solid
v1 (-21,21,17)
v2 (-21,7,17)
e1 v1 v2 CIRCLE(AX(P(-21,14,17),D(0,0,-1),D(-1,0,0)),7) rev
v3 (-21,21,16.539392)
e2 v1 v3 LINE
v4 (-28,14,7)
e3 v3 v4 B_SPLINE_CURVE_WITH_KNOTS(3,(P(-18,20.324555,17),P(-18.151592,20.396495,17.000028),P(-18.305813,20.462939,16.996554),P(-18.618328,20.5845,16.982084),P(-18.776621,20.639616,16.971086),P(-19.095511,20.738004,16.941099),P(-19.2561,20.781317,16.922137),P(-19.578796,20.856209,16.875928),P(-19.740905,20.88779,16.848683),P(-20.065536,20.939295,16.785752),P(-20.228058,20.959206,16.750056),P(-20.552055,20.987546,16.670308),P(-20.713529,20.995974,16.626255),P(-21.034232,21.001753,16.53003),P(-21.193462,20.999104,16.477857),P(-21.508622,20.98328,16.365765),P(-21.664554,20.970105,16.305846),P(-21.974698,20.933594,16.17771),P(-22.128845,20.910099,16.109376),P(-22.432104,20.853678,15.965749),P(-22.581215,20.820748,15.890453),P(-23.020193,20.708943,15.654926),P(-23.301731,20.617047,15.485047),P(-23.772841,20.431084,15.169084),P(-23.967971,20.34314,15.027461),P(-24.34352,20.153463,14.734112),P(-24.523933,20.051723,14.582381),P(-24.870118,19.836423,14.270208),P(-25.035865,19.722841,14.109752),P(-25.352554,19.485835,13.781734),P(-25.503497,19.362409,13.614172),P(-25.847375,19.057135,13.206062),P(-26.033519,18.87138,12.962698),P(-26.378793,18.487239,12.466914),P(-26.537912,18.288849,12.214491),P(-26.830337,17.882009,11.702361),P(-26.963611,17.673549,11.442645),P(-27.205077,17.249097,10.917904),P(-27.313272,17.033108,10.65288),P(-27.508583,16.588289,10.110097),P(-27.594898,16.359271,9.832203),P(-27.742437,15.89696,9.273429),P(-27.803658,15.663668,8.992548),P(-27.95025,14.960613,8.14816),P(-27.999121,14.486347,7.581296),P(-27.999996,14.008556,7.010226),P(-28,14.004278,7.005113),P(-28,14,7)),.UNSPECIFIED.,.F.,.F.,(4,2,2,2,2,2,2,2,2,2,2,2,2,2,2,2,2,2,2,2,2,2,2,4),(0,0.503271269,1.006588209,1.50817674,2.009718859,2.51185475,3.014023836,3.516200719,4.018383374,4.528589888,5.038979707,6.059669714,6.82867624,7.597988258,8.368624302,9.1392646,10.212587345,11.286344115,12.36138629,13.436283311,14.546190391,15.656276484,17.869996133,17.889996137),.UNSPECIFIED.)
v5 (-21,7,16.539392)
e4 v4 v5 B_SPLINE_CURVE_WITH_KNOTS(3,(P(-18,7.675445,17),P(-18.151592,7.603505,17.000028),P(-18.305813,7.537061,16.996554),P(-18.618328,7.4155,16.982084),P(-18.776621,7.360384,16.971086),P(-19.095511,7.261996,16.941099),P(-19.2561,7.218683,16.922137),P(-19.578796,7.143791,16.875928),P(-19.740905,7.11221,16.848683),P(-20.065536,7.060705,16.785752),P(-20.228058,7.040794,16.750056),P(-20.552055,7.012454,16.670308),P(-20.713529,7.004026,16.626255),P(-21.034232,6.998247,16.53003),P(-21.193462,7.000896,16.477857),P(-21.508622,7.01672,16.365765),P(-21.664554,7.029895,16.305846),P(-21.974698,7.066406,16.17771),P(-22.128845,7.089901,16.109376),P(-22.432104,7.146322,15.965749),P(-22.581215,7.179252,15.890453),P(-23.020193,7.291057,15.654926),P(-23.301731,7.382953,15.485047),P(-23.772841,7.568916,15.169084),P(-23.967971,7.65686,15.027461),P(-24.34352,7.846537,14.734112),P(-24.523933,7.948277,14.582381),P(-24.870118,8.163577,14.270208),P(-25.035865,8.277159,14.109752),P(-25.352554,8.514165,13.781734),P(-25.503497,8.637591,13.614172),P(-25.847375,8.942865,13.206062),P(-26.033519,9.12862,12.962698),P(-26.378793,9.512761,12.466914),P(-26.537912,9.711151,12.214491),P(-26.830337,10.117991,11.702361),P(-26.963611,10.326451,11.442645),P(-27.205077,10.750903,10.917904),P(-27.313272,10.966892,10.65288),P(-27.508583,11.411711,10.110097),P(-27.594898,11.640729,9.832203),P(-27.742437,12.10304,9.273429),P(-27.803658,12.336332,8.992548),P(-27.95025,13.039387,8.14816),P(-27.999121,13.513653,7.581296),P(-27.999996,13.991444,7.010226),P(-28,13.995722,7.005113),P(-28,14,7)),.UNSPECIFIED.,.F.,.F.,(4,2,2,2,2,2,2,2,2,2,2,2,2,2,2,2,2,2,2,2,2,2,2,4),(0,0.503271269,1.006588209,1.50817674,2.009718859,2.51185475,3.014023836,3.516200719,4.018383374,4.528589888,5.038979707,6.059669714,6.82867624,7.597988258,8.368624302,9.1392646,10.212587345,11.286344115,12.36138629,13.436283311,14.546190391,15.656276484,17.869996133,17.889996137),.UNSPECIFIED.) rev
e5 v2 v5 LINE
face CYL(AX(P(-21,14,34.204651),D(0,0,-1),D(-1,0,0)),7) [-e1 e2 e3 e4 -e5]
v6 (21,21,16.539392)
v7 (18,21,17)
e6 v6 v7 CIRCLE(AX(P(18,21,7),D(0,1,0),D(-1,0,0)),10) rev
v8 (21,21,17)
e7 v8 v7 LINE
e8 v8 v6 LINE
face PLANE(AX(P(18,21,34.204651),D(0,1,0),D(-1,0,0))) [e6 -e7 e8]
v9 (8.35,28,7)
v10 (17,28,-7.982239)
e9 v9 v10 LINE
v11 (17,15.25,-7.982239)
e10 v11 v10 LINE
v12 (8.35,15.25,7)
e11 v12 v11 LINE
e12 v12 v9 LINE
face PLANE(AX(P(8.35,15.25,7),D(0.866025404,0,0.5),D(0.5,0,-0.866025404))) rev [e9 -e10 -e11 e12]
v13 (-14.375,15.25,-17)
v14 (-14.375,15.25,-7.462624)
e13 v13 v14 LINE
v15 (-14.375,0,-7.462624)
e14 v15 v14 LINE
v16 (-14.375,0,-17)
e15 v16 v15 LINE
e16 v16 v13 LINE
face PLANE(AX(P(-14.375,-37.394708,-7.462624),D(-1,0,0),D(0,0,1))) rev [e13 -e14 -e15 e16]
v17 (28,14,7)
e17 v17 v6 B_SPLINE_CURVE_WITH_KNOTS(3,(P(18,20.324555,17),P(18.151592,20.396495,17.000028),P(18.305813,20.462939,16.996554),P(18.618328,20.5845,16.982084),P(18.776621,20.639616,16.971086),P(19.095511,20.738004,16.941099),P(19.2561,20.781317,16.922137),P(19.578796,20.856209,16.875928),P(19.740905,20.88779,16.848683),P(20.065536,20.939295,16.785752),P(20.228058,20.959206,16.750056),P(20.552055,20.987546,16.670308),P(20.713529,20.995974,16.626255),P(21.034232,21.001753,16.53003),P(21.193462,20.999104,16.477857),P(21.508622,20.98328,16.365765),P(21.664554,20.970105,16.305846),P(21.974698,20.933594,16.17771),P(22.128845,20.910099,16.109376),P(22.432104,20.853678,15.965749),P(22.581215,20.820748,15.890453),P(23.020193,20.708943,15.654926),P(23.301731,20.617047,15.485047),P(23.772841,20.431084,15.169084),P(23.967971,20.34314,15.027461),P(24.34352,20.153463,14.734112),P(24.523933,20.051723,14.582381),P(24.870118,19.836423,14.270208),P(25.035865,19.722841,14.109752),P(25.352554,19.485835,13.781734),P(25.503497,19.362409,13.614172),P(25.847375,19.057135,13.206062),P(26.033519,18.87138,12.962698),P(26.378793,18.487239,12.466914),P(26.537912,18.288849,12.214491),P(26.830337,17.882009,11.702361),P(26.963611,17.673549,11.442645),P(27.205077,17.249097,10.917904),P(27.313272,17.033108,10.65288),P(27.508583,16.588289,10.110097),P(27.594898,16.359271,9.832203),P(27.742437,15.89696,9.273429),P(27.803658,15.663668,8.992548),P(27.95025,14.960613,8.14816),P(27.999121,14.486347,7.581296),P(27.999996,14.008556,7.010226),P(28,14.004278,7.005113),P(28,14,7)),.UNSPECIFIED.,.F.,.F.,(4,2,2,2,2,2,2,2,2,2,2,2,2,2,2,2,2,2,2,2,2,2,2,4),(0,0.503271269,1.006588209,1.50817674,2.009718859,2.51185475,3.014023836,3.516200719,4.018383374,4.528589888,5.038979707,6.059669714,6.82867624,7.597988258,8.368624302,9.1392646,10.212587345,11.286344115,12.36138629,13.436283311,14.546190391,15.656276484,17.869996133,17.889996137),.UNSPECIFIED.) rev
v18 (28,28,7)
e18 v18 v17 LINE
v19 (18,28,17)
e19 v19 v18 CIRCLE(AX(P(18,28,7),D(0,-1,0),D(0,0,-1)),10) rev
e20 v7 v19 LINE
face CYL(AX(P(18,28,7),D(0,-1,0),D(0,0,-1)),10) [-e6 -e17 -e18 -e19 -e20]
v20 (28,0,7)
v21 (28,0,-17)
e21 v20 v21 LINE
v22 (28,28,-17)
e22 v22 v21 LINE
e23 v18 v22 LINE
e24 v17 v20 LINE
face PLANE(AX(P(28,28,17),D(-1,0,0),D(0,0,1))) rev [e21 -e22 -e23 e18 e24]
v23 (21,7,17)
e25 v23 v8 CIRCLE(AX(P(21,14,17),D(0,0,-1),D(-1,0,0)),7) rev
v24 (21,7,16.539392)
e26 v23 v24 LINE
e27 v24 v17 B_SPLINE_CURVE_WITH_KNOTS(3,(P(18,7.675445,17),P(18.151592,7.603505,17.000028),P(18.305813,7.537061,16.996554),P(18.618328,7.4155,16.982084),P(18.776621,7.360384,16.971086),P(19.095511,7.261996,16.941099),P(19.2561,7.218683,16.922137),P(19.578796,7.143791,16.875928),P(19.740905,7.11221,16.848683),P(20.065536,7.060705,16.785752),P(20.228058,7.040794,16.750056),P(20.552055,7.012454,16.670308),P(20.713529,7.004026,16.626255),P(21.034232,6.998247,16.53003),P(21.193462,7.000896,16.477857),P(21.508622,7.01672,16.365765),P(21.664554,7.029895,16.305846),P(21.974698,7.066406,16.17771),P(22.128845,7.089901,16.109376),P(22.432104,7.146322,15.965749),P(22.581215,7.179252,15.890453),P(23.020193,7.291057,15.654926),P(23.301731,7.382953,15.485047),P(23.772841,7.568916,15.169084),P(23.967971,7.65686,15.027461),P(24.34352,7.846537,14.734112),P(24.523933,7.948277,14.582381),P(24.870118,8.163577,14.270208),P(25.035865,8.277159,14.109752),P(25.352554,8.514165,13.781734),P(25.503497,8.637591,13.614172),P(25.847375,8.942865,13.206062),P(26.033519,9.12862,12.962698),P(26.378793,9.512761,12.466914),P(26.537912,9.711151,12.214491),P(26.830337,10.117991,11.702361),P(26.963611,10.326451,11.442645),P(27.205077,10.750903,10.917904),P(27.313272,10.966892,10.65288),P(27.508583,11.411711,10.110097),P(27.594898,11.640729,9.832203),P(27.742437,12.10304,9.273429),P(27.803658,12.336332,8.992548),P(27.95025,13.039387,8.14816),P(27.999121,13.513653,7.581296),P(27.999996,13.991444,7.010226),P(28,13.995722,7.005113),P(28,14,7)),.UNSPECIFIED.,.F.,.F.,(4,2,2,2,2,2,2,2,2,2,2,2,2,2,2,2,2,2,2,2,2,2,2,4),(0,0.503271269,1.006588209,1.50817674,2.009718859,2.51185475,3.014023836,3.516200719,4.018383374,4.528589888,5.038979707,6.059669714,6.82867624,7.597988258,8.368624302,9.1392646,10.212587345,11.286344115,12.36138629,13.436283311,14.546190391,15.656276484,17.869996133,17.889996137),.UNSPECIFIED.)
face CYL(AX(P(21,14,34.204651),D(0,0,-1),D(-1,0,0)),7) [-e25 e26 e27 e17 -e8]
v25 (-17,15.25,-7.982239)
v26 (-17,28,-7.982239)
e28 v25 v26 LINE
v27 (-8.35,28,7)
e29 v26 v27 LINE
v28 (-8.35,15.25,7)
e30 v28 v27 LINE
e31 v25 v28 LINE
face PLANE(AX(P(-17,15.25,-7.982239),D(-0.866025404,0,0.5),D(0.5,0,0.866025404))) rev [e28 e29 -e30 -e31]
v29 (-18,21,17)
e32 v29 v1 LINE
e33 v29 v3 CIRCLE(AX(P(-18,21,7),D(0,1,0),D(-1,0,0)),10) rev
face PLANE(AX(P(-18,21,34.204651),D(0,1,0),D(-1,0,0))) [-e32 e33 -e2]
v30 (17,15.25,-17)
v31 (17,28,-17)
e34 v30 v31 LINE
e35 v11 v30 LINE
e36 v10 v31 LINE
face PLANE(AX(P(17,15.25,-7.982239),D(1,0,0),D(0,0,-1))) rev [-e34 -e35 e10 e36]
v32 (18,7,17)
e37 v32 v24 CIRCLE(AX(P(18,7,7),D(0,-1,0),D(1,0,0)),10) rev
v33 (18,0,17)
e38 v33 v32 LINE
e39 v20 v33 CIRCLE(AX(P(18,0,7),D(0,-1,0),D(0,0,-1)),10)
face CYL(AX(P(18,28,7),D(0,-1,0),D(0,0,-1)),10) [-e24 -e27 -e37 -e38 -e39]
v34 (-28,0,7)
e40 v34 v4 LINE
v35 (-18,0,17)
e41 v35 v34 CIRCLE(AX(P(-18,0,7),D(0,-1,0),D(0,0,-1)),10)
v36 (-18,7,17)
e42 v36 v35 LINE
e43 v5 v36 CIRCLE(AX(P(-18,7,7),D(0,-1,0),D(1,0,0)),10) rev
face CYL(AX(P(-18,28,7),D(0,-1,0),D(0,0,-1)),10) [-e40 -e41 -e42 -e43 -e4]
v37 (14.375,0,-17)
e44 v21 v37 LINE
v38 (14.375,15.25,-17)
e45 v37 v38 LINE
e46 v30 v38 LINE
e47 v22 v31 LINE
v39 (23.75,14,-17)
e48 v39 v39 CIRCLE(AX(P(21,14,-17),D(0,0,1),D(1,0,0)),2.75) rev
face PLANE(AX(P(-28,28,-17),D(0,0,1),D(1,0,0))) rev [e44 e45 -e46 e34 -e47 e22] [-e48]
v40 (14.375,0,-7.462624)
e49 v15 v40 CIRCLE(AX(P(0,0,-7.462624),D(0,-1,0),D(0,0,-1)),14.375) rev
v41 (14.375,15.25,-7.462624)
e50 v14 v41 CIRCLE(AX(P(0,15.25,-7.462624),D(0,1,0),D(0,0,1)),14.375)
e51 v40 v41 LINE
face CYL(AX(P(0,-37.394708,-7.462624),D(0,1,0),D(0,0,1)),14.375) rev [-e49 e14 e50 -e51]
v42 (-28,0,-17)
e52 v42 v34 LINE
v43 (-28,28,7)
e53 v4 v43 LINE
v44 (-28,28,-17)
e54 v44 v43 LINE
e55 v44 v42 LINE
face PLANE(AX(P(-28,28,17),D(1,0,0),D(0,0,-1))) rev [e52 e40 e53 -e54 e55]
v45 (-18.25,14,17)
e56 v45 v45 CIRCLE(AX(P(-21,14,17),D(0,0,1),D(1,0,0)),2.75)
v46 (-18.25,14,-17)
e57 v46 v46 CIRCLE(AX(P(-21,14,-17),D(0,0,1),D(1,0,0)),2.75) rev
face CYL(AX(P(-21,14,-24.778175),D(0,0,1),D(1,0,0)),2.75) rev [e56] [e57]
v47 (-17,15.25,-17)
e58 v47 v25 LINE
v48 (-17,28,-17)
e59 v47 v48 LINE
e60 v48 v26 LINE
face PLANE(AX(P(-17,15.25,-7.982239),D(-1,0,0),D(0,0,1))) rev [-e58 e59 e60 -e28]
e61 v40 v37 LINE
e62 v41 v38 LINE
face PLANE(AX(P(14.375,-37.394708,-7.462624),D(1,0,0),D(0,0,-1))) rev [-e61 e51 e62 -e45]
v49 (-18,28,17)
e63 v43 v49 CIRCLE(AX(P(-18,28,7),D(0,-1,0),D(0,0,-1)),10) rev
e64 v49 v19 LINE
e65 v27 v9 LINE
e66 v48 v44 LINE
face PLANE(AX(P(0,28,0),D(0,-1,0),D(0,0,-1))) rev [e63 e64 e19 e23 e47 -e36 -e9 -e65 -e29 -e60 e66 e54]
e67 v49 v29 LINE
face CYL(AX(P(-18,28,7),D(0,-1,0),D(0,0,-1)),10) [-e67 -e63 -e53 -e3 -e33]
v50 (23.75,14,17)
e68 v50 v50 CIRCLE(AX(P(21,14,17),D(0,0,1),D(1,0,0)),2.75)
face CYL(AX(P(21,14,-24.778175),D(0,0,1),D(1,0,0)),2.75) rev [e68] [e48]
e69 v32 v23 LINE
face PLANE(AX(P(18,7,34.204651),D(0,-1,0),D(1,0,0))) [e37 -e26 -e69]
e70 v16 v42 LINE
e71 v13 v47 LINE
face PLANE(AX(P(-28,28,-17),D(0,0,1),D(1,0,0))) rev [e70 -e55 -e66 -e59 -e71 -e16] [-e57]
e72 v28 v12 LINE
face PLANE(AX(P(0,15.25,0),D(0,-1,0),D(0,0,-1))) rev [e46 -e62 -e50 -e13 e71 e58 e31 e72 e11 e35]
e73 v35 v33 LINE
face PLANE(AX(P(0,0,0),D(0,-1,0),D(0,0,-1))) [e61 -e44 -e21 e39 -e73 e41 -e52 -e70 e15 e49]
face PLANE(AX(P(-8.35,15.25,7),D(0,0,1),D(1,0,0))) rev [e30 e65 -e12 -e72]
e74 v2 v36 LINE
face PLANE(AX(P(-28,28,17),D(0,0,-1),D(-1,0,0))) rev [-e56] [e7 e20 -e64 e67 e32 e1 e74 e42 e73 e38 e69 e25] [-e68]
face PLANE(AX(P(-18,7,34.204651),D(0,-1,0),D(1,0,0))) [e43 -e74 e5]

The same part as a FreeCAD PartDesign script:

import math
import FreeCAD as App
import Part
import Sketcher
from FreeCAD import Vector
Q = App.Units.Quantity


def edges_at(feature, points):
    """Names of the edges that pass closest to the given points."""
    edges = feature.Shape.Edges
    near = lambda p: min(range(len(edges)), key=lambda i: edges[i].distToShape(Part.Vertex(*p))[0])
    return sorted({f"Edge{near(p) + 1}" for p in points})

doc = App.newDocument("Part")
body = doc.addObject("PartDesign::Body", "Body")

# Sketch on XZ plane
sketch1 = body.newObject("Sketcher::SketchObject", "Sketch")
sketch1.AttachmentSupport = (doc.getObject("XZ_Plane"), [""])
sketch1.MapMode = "FlatFace"
sketch1.addGeometry(Part.LineSegment(Vector(-28, -17, 0), Vector(-28, 17, 0)), False)
sketch1.addGeometry(Part.LineSegment(Vector(-28, 17, 0), Vector(28, 17, 0)), False)
sketch1.addGeometry(Part.LineSegment(Vector(28, 17, 0), Vector(28, -17, 0)), False)
sketch1.addGeometry(Part.LineSegment(Vector(28, -17, 0), Vector(-28, -17, 0)), False)
sketch1.addConstraint(Sketcher.Constraint("Coincident", 0, 2, 1, 1))
sketch1.addConstraint(Sketcher.Constraint("Coincident", 1, 2, 2, 1))
sketch1.addConstraint(Sketcher.Constraint("Coincident", 2, 2, 3, 1))
sketch1.addConstraint(Sketcher.Constraint("Coincident", 3, 2, 0, 1))
sketch1.addConstraint(Sketcher.Constraint("Vertical", 0))
sketch1.addConstraint(Sketcher.Constraint("Horizontal", 1))
sketch1.addConstraint(Sketcher.Constraint("Vertical", 2))
sketch1.addConstraint(Sketcher.Constraint("Horizontal", 3))
sketch1.addConstraint(Sketcher.Constraint("Symmetric", 0, 2, 2, 2, -1, 1))
sketch1.addConstraint(Sketcher.Constraint("DistanceX", 1, 1, 1, 2, 56.0))
sketch1.addConstraint(Sketcher.Constraint("DistanceY", 0, 1, 0, 2, 34.0))
pad1 = body.newObject("PartDesign::Pad", "Pad")
pad1.Profile = sketch1
pad1.Length = 28
pad1.Reversed = True

# Sketch on XZ plane
sketch2 = body.newObject("Sketcher::SketchObject", "Sketch001")
sketch2.AttachmentSupport = (doc.getObject("XZ_Plane"), [""])
sketch2.MapMode = "FlatFace"
sketch2.AttachmentOffset = App.Placement(Vector(0, 0, -28), App.Rotation())
sketch2.addGeometry(Part.LineSegment(Vector(-17, -8, 0), Vector(-8, 7, 0)), False)
sketch2.addGeometry(Part.LineSegment(Vector(-8, 7, 0), Vector(8, 7, 0)), False)
sketch2.addGeometry(Part.LineSegment(Vector(8, 7, 0), Vector(17, -8, 0)), False)
sketch2.addGeometry(Part.LineSegment(Vector(17, -8, 0), Vector(17, -17, 0)), False)
sketch2.addGeometry(Part.LineSegment(Vector(17, -17, 0), Vector(-17, -17, 0)), False)
sketch2.addGeometry(Part.LineSegment(Vector(-17, -17, 0), Vector(-17, -8, 0)), False)
sketch2.addConstraint(Sketcher.Constraint("Coincident", 0, 2, 1, 1))
sketch2.addConstraint(Sketcher.Constraint("Coincident", 1, 2, 2, 1))
sketch2.addConstraint(Sketcher.Constraint("Coincident", 2, 2, 3, 1))
sketch2.addConstraint(Sketcher.Constraint("Coincident", 3, 2, 4, 1))
sketch2.addConstraint(Sketcher.Constraint("Coincident", 4, 2, 5, 1))
sketch2.addConstraint(Sketcher.Constraint("Coincident", 5, 2, 0, 1))
sketch2.addConstraint(Sketcher.Constraint("Horizontal", 1))
sketch2.addConstraint(Sketcher.Constraint("Vertical", 3))
sketch2.addConstraint(Sketcher.Constraint("Horizontal", 4))
sketch2.addConstraint(Sketcher.Constraint("Vertical", 5))
sketch2.addConstraint(Sketcher.Constraint("Symmetric", 2, 2, 5, 2, -2))
sketch2.addConstraint(Sketcher.Constraint("Equal", 0, 2))
sketch2.addConstraint(Sketcher.Constraint("DistanceX", 4, 2, 4, 1, 34.0))
sketch2.addConstraint(Sketcher.Constraint("Angle", 0, Q("60 deg")))
sketch2.addConstraint(Sketcher.Constraint("DistanceX", 1, 1, 1, 2, 16.7))
sketch2.addConstraint(Sketcher.Constraint("DistanceY", -1, 1, 0, 2, 7.0))
sketch2.addConstraint(Sketcher.Constraint("DistanceY", 3, 2, -1, 1, 17.0))
pocket1 = body.newObject("PartDesign::Pocket", "Pocket")
pocket1.Profile = sketch2
pocket1.Length = 12.75
pocket1.Reversed = True

# Sketch on XZ plane
sketch3 = body.newObject("Sketcher::SketchObject", "Sketch002")
sketch3.AttachmentSupport = (doc.getObject("XZ_Plane"), [""])
sketch3.MapMode = "FlatFace"
sketch3.AttachmentOffset = App.Placement(Vector(0, 0, -15.25), App.Rotation())
sketch3.addGeometry(Part.LineSegment(Vector(-14, -17, 0), Vector(-14, -7, 0)), False)
sketch3.addGeometry(Part.ArcOfCircle(Part.Circle(Vector(0, -7, 0), Vector(0, 0, 1), 14), math.radians(0), math.radians(180)), False)
sketch3.addGeometry(Part.LineSegment(Vector(14, -7, 0), Vector(14, -17, 0)), False)
sketch3.addGeometry(Part.LineSegment(Vector(14, -17, 0), Vector(-14, -17, 0)), False)
sketch3.addConstraint(Sketcher.Constraint("Tangent", 0, 2, 1, 2))
sketch3.addConstraint(Sketcher.Constraint("Tangent", 1, 1, 2, 1))
sketch3.addConstraint(Sketcher.Constraint("Coincident", 2, 2, 3, 1))
sketch3.addConstraint(Sketcher.Constraint("Coincident", 3, 2, 0, 1))
sketch3.addConstraint(Sketcher.Constraint("Vertical", 0))
sketch3.addConstraint(Sketcher.Constraint("Vertical", 2))
sketch3.addConstraint(Sketcher.Constraint("Horizontal", 3))
sketch3.addConstraint(Sketcher.Constraint("PointOnObject", 1, 3, -2))
sketch3.addConstraint(Sketcher.Constraint("DistanceY", 2, 2, -1, 1, 17.0))
sketch3.addConstraint(Sketcher.Constraint("Radius", 1, 14.375))
sketch3.addConstraint(Sketcher.Constraint("DistanceY", 0, 1, 0, 2, 9.537376))
pocket2 = body.newObject("PartDesign::Pocket", "Pocket001")
pocket2.Profile = sketch3
pocket2.Length = 15.25
pocket2.Reversed = True
doc.recompute()

fillet = body.newObject("PartDesign::Fillet", "Fillet")
fillet.Base = (pocket2, edges_at(pocket2, [(28, 14, 17), (-28, 14, 17)]))
fillet.Radius = 10

# Sketch on XY plane
sketch4 = body.newObject("Sketcher::SketchObject", "Sketch003")
sketch4.AttachmentSupport = (doc.getObject("XY_Plane"), [""])
sketch4.MapMode = "FlatFace"
sketch4.AttachmentOffset = App.Placement(Vector(0, 0, 7), App.Rotation())
sketch4.addGeometry(Part.LineSegment(Vector(-18, 21, 0), Vector(-18, 7, 0)), False)
sketch4.addGeometry(Part.LineSegment(Vector(-18, 7, 0), Vector(-21, 7, 0)), False)
sketch4.addGeometry(Part.ArcOfCircle(Part.Circle(Vector(-21, 14, 0), Vector(0, 0, 1), 7), math.radians(90), math.radians(270)), False)
sketch4.addGeometry(Part.LineSegment(Vector(-21, 21, 0), Vector(-18, 21, 0)), False)
sketch4.addGeometry(Part.LineSegment(Vector(21, 7, 0), Vector(18, 7, 0)), False)
sketch4.addGeometry(Part.LineSegment(Vector(18, 7, 0), Vector(18, 21, 0)), False)
sketch4.addGeometry(Part.LineSegment(Vector(18, 21, 0), Vector(21, 21, 0)), False)
sketch4.addGeometry(Part.ArcOfCircle(Part.Circle(Vector(21, 14, 0), Vector(0, 0, 1), 7), math.radians(-90), math.radians(90)), False)
sketch4.addConstraint(Sketcher.Constraint("Coincident", 0, 2, 1, 1))
sketch4.addConstraint(Sketcher.Constraint("Tangent", 1, 2, 2, 2))
sketch4.addConstraint(Sketcher.Constraint("Tangent", 2, 1, 3, 1))
sketch4.addConstraint(Sketcher.Constraint("Coincident", 3, 2, 0, 1))
sketch4.addConstraint(Sketcher.Constraint("Coincident", 4, 2, 5, 1))
sketch4.addConstraint(Sketcher.Constraint("Coincident", 5, 2, 6, 1))
sketch4.addConstraint(Sketcher.Constraint("Tangent", 6, 2, 7, 2))
sketch4.addConstraint(Sketcher.Constraint("Tangent", 7, 1, 4, 1))
sketch4.addConstraint(Sketcher.Constraint("Vertical", 0))
sketch4.addConstraint(Sketcher.Constraint("Horizontal", 1))
sketch4.addConstraint(Sketcher.Constraint("Horizontal", 3))
sketch4.addConstraint(Sketcher.Constraint("Horizontal", 4))
sketch4.addConstraint(Sketcher.Constraint("Vertical", 5))
sketch4.addConstraint(Sketcher.Constraint("Horizontal", 6))
sketch4.addConstraint(Sketcher.Constraint("Equal", 2, 7))
sketch4.addConstraint(Sketcher.Constraint("Symmetric", 2, 3, 7, 3, -2))
sketch4.addConstraint(Sketcher.Constraint("Equal", 3, 4))
sketch4.addConstraint(Sketcher.Constraint("Radius", 2, 7.0))
sketch4.addConstraint(Sketcher.Constraint("DistanceX", 1, 2, 1, 1, 3.0))
sketch4.addConstraint(Sketcher.Constraint("DistanceX", 2, 3, -1, 1, 21.0))
sketch4.addConstraint(Sketcher.Constraint("DistanceY", -1, 1, 2, 3, 14.0))
pad2 = body.newObject("PartDesign::Pad", "Pad001")
pad2.Profile = sketch4
pad2.Length = 10

# Sketch on XY plane
sketch5 = body.newObject("Sketcher::SketchObject", "Sketch004")
sketch5.AttachmentSupport = (doc.getObject("XY_Plane"), [""])
sketch5.MapMode = "FlatFace"
sketch5.AttachmentOffset = App.Placement(Vector(0, 0, 17), App.Rotation())
sketch5.addGeometry(Part.Circle(Vector(-21, 14, 0), Vector(0, 0, 1), 2.8), False)
sketch5.addGeometry(Part.Circle(Vector(21, 14, 0), Vector(0, 0, 1), 2.8), False)
sketch5.addConstraint(Sketcher.Constraint("Equal", 0, 1))
sketch5.addConstraint(Sketcher.Constraint("Symmetric", 0, 3, 1, 3, -2))
sketch5.addConstraint(Sketcher.Constraint("Diameter", 0, 5.5))
sketch5.addConstraint(Sketcher.Constraint("DistanceX", 0, 3, -1, 1, 21.0))
sketch5.addConstraint(Sketcher.Constraint("DistanceY", -1, 1, 0, 3, 14.0))
pocket3 = body.newObject("PartDesign::Pocket", "Pocket002")
pocket3.Profile = sketch5
pocket3.Length = 34

doc.recompute()
